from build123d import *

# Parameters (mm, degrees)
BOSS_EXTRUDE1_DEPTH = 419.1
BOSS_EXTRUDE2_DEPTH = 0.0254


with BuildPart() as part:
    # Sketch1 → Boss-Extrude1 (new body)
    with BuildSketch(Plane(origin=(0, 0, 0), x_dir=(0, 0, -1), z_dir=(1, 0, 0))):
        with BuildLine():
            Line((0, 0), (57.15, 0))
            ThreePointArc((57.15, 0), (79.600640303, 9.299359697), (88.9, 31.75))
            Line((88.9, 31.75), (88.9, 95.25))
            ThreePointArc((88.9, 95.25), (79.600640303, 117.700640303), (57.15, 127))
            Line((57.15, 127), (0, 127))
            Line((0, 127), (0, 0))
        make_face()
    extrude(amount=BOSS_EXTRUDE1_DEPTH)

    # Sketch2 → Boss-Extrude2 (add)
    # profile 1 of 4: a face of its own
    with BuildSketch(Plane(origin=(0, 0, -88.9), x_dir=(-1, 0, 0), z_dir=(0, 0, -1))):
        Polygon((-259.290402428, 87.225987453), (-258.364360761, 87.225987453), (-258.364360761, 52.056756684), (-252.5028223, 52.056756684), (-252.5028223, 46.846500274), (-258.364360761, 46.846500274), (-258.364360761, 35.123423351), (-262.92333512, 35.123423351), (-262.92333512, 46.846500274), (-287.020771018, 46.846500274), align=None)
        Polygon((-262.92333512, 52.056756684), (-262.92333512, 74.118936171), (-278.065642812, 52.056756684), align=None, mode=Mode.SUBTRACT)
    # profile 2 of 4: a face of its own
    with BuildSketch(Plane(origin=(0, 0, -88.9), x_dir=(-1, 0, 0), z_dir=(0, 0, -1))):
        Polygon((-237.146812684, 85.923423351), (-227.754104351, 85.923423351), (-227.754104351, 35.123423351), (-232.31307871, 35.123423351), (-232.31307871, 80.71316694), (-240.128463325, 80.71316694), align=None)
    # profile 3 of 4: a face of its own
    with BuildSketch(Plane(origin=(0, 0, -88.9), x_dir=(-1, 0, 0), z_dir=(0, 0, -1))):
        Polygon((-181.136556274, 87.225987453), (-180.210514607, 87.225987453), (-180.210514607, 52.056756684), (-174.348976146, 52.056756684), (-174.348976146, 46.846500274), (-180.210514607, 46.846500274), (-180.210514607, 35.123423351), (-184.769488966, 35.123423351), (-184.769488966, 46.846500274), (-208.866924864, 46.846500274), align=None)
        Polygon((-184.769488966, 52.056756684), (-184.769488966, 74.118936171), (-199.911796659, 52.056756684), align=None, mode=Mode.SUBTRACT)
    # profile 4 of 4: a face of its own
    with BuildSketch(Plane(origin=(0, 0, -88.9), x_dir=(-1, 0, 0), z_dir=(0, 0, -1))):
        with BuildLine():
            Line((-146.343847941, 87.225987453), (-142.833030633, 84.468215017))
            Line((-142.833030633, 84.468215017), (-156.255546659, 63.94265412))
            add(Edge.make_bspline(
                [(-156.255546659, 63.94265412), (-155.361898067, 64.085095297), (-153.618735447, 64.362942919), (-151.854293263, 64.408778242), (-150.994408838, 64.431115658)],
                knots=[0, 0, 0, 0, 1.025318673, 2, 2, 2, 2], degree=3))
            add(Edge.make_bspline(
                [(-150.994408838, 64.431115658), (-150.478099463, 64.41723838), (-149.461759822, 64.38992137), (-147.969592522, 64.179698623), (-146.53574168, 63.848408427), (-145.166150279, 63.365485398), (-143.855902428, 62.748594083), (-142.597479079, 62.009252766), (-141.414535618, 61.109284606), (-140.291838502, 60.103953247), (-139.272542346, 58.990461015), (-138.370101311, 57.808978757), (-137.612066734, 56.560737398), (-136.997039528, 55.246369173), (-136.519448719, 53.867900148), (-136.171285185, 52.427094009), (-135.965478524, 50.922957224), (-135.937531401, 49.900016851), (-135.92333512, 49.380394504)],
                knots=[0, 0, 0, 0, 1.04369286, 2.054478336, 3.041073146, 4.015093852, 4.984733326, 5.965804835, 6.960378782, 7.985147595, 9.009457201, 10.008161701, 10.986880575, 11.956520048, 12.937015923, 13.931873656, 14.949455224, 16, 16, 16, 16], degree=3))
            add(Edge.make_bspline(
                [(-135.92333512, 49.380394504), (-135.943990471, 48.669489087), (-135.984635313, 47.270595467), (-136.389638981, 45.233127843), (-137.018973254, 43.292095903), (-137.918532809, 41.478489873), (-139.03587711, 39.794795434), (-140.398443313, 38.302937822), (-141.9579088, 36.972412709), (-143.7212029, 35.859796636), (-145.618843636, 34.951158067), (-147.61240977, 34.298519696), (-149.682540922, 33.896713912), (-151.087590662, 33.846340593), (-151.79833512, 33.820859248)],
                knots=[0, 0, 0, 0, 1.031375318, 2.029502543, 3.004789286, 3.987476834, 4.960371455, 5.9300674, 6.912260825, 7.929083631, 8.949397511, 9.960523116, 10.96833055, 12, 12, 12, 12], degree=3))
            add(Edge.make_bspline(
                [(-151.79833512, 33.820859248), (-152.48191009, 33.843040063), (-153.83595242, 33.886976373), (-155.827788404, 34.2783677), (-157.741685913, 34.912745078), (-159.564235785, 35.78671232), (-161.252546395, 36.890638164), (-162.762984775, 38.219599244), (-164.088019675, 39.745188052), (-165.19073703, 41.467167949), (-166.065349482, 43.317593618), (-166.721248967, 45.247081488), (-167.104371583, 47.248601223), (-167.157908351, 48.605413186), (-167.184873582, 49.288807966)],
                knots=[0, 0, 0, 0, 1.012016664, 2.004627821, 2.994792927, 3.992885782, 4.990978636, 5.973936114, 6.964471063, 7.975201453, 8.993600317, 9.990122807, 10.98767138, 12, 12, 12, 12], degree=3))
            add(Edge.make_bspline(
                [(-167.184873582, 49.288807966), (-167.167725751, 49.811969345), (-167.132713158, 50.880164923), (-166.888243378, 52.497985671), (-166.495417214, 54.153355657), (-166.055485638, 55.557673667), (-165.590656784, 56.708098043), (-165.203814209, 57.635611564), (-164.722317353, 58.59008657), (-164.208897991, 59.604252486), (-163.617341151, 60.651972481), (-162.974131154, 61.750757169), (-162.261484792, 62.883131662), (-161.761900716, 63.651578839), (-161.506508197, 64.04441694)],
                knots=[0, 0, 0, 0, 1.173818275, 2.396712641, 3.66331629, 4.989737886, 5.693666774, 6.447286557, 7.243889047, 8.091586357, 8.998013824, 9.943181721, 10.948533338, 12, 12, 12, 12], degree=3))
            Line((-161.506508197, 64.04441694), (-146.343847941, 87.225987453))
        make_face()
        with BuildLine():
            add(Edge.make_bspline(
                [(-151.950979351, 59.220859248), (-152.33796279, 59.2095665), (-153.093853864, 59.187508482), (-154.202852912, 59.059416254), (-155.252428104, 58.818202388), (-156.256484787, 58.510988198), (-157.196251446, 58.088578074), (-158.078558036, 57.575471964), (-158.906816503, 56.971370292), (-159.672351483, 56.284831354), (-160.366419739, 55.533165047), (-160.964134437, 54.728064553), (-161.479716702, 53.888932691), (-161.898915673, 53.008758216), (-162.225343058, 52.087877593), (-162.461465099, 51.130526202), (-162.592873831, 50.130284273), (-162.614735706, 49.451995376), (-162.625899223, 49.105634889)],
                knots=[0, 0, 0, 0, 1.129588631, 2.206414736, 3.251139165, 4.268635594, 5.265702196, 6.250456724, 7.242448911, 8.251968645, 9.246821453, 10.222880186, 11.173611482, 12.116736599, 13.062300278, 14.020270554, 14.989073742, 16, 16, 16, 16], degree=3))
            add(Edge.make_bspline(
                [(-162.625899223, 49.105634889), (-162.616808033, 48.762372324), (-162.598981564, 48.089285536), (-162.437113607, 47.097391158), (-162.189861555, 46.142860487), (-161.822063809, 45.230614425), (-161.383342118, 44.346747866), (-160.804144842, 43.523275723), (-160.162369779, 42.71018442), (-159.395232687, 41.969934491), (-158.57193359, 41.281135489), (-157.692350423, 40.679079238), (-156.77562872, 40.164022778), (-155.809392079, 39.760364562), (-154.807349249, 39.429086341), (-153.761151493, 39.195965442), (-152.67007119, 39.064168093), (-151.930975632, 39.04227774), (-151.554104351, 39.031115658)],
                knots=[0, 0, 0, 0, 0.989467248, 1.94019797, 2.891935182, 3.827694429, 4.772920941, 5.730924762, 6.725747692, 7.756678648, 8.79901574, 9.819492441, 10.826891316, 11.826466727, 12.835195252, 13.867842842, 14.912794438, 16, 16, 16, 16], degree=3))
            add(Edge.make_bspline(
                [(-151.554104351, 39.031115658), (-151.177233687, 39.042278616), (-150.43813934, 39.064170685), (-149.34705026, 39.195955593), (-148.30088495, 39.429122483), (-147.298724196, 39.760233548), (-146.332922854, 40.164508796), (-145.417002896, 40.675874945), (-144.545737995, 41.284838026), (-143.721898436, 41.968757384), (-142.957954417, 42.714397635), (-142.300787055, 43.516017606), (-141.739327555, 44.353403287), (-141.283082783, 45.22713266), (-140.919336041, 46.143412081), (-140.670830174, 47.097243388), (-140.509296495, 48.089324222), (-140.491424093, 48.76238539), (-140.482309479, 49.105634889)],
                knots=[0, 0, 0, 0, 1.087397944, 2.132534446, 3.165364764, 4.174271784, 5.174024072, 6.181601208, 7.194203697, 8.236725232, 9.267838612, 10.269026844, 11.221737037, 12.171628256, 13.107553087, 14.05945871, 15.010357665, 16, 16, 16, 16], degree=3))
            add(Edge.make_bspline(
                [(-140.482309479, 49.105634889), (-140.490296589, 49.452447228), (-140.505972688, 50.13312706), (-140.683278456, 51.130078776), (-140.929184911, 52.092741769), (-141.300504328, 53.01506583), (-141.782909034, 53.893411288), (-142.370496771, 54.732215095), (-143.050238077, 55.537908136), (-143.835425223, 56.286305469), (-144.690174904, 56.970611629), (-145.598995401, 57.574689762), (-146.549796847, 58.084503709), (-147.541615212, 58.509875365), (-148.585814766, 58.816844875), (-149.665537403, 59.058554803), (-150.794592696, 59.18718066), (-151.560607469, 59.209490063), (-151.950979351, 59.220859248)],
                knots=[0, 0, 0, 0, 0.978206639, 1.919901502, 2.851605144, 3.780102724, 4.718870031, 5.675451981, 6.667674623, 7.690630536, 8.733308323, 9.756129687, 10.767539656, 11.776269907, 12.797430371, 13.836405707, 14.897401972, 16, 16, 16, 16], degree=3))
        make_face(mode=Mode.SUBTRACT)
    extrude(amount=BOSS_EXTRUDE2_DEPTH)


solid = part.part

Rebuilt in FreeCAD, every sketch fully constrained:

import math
import FreeCAD as App
import Part
import Sketcher
from FreeCAD import Vector
Q = App.Units.Quantity


def add_polygon(sketch, points):
    """Adds a closed chain of lines whose ends are joined by coincident constraints."""
    first, n = sketch.GeometryCount, len(points)
    for a, b in zip(points, points[1:] + points[:1]):
        sketch.addGeometry(Part.LineSegment(App.Vector(*a, 0), App.Vector(*b, 0)), False)
    for i in range(n):
        sketch.addConstraint(Sketcher.Constraint("Coincident", first + i, 2, first + (i + 1) % n, 1))

doc = App.newDocument("Part")
body = doc.addObject("PartDesign::Body", "Body")

sketch1 = doc.addObject("Sketcher::SketchObject", "Sketch")
body.addObject(sketch1)
sketch1.AttachmentSupport = (doc.YZ_Plane, [""])
sketch1.MapMode = "FlatFace"
sketch1.addGeometry([
    Part.LineSegment(Vector(0, 0, 0), Vector(0, -57, 0)),
    Part.ArcOfCircle(Part.Circle(Vector(32, -57, 0), Vector(0, 0, 1), 32), math.radians(180), math.radians(270)),
    Part.LineSegment(Vector(32, -89, 0), Vector(95, -89, 0)),
    Part.ArcOfCircle(Part.Circle(Vector(95, -57, 0), Vector(0, 0, 1), 32), math.radians(-90), math.radians(0)),
    Part.LineSegment(Vector(127, -57, 0), Vector(127, 0, 0)),
    Part.LineSegment(Vector(127, 0, 0), Vector(0, 0, 0)),
], False)
sketch1.addConstraint([
    Sketcher.Constraint("Tangent", 0, 2, 1, 1),
    Sketcher.Constraint("Tangent", 1, 2, 2, 1),
    Sketcher.Constraint("Tangent", 2, 2, 3, 1),
    Sketcher.Constraint("Tangent", 3, 2, 4, 1),
    Sketcher.Constraint("Coincident", 4, 2, 5, 1),
    Sketcher.Constraint("Coincident", 5, 2, 0, 1),
    Sketcher.Constraint("Vertical", 0),
    Sketcher.Constraint("Horizontal", 2),
    Sketcher.Constraint("Vertical", 4),
    Sketcher.Constraint("Horizontal", 5),
    Sketcher.Constraint("Coincident", 5, 2, -1, 1),
    Sketcher.Constraint("Equal", 1, 3),
    Sketcher.Constraint("DistanceX", 5, 2, 5, 1, Q("5 in")),
    Sketcher.Constraint("Radius", 1, Q("1.25 in")),
    Sketcher.Constraint("DistanceY", 0, 2, 0, 1, Q("2.25 in")),
])
pad1 = doc.addObject("PartDesign::Pad", "Pad")
body.addObject(pad1)
pad1.Profile = sketch1
pad1.Length = Q("16.5 in")

sketch2 = doc.addObject("Sketcher::SketchObject", "Sketch001")
body.addObject(sketch2)
sketch2.AttachmentSupport = (doc.XY_Plane, [""])
sketch2.MapMode = "FlatFace"
sketch2.AttachmentOffset = App.Placement(Vector(0, 0, -3.5 * 25.4), App.Rotation())
add_polygon(sketch2, [(258.364361, 87.225987), (259.290402, 87.225987), (287.020771, 46.8465), (262.923335, 46.8465), (262.923335, 35.123423), (258.364361, 35.123423), (258.364361, 46.8465), (252.502822, 46.8465), (252.502822, 52.056757), (258.364361, 52.056757)])
add_polygon(sketch2, [(262.923335, 52.056757), (278.065643, 52.056757), (262.923335, 74.118936)])
add_polygon(sketch2, [(227.754104, 85.923423), (237.146813, 85.923423), (240.128463, 80.713167), (232.313079, 80.713167), (232.313079, 35.123423), (227.754104, 35.123423)])
add_polygon(sketch2, [(180.210515, 87.225987), (181.136556, 87.225987), (208.866925, 46.8465), (184.769489, 46.8465), (184.769489, 35.123423), (180.210515, 35.123423), (180.210515, 46.8465), (174.348976, 46.8465), (174.348976, 52.056757), (180.210515, 52.056757)])
add_polygon(sketch2, [(184.769489, 52.056757), (199.911797, 52.056757), (184.769489, 74.118936)])
sketch2.addGeometry(Part.LineSegment(Vector(142.833031, 84.468215, 0), Vector(146.343848, 87.225987, 0)), False)
sketch2.addGeometry(Part.LineSegment(Vector(146.343848, 87.225987, 0), Vector(161.506508, 64.044417, 0)), False)
sketch2.addGeometry(Part.BSplineCurve([Vector(167.184874, 49.288808, 0), Vector(167.167726, 49.811969, 0), Vector(167.132713, 50.880165, 0), Vector(166.888243, 52.497986, 0), Vector(166.495417, 54.153356, 0), Vector(166.055486, 55.557674, 0), Vector(165.590657, 56.708098, 0), Vector(165.203814, 57.635612, 0), Vector(164.722317, 58.590087, 0), Vector(164.208898, 59.604252, 0), Vector(163.617341, 60.651972, 0), Vector(162.974131, 61.750757, 0), Vector(162.261485, 62.883132, 0), Vector(161.761901, 63.651579, 0), Vector(161.506508, 64.044417, 0)], [4, 1, 1, 1, 1, 1, 1, 1, 1, 1, 1, 1, 4], [0, 1.173818275, 2.396712641, 3.66331629, 4.989737886, 5.693666774, 6.447286557, 7.243889047, 8.091586357, 8.998013824, 9.943181721, 10.948533338, 12], False, 3, [1, 1, 1, 1, 1, 1, 1, 1, 1, 1, 1, 1, 1, 1, 1], False), False)
sketch2.addGeometry(Part.BSplineCurve([Vector(151.798335, 33.820859, 0), Vector(152.48191, 33.84304, 0), Vector(153.835952, 33.886976, 0), Vector(155.827788, 34.278368, 0), Vector(157.741686, 34.912745, 0), Vector(159.564236, 35.786712, 0), Vector(161.252546, 36.890638, 0), Vector(162.762985, 38.219599, 0), Vector(164.08802, 39.745188, 0), Vector(165.190737, 41.467168, 0), Vector(166.065349, 43.317594, 0), Vector(166.721249, 45.247081, 0), Vector(167.104372, 47.248601, 0), Vector(167.157908, 48.605413, 0), Vector(167.184874, 49.288808, 0)], [4, 1, 1, 1, 1, 1, 1, 1, 1, 1, 1, 1, 4], [0, 1.012016664, 2.004627821, 2.994792927, 3.992885782, 4.990978636, 5.973936114, 6.964471063, 7.975201453, 8.993600317, 9.990122807, 10.98767138, 12], False, 3, [1, 1, 1, 1, 1, 1, 1, 1, 1, 1, 1, 1, 1, 1, 1], False), False)
sketch2.addGeometry(Part.BSplineCurve([Vector(135.923335, 49.380395, 0), Vector(135.94399, 48.669489, 0), Vector(135.984635, 47.270595, 0), Vector(136.389639, 45.233128, 0), Vector(137.018973, 43.292096, 0), Vector(137.918533, 41.47849, 0), Vector(139.035877, 39.794795, 0), Vector(140.398443, 38.302938, 0), Vector(141.957909, 36.972413, 0), Vector(143.721203, 35.859797, 0), Vector(145.618844, 34.951158, 0), Vector(147.61241, 34.29852, 0), Vector(149.682541, 33.896714, 0), Vector(151.087591, 33.846341, 0), Vector(151.798335, 33.820859, 0)], [4, 1, 1, 1, 1, 1, 1, 1, 1, 1, 1, 1, 4], [0, 1.031375318, 2.029502543, 3.004789286, 3.987476834, 4.960371455, 5.9300674, 6.912260825, 7.929083631, 8.949397511, 9.960523116, 10.96833055, 12], False, 3, [1, 1, 1, 1, 1, 1, 1, 1, 1, 1, 1, 1, 1, 1, 1], False), False)
sketch2.addGeometry(Part.BSplineCurve([Vector(150.994409, 64.431116, 0), Vector(150.478099, 64.417238, 0), Vector(149.46176, 64.389921, 0), Vector(147.969593, 64.179699, 0), Vector(146.535742, 63.848408, 0), Vector(145.16615, 63.365485, 0), Vector(143.855902, 62.748594, 0), Vector(142.597479, 62.009253, 0), Vector(141.414536, 61.109285, 0), Vector(140.291839, 60.103953, 0), Vector(139.272542, 58.990461, 0), Vector(138.370101, 57.808979, 0), Vector(137.612067, 56.560737, 0), Vector(136.99704, 55.246369, 0), Vector(136.519449, 53.8679, 0), Vector(136.171285, 52.427094, 0), Vector(135.965479, 50.922957, 0), Vector(135.937531, 49.900017, 0), Vector(135.923335, 49.380395, 0)], [4, 1, 1, 1, 1, 1, 1, 1, 1, 1, 1, 1, 1, 1, 1, 1, 4], [0, 1.04369286, 2.054478336, 3.041073146, 4.015093852, 4.984733326, 5.965804835, 6.960378782, 7.985147595, 9.009457201, 10.008161701, 10.986880575, 11.956520048, 12.937015923, 13.931873656, 14.949455224, 16], False, 3, [1, 1, 1, 1, 1, 1, 1, 1, 1, 1, 1, 1, 1, 1, 1, 1, 1, 1, 1], False), False)
sketch2.addGeometry(Part.BSplineCurve([Vector(156.255547, 63.942654, 0), Vector(155.361898, 64.085095, 0), Vector(153.618735, 64.362943, 0), Vector(151.854293, 64.408778, 0), Vector(150.994409, 64.431116, 0)], [4, 1, 4], [0, 1.025318673, 2], False, 3, [1, 1, 1, 1, 1], False), False)
sketch2.addGeometry(Part.LineSegment(Vector(156.255547, 63.942654, 0), Vector(142.833031, 84.468215, 0)), False)
sketch2.addGeometry(Part.BSplineCurve([Vector(140.482309, 49.105635, 0), Vector(140.490297, 49.452447, 0), Vector(140.505973, 50.133127, 0), Vector(140.683278, 51.130079, 0), Vector(140.929185, 52.092742, 0), Vector(141.300504, 53.015066, 0), Vector(141.782909, 53.893411, 0), Vector(142.370497, 54.732215, 0), Vector(143.050238, 55.537908, 0), Vector(143.835425, 56.286305, 0), Vector(144.690175, 56.970612, 0), Vector(145.598995, 57.57469, 0), Vector(146.549797, 58.084504, 0), Vector(147.541615, 58.509875, 0), Vector(148.585815, 58.816845, 0), Vector(149.665537, 59.058555, 0), Vector(150.794593, 59.187181, 0), Vector(151.560607, 59.20949, 0), Vector(151.950979, 59.220859, 0)], [4, 1, 1, 1, 1, 1, 1, 1, 1, 1, 1, 1, 1, 1, 1, 1, 4], [0, 0.978206639, 1.919901502, 2.851605144, 3.780102724, 4.718870031, 5.675451981, 6.667674623, 7.690630536, 8.733308323, 9.756129687, 10.767539656, 11.776269907, 12.797430371, 13.836405707, 14.897401972, 16], False, 3, [1, 1, 1, 1, 1, 1, 1, 1, 1, 1, 1, 1, 1, 1, 1, 1, 1, 1, 1], False), False)
sketch2.addGeometry(Part.BSplineCurve([Vector(151.554104, 39.031116, 0), Vector(151.177234, 39.042279, 0), Vector(150.438139, 39.064171, 0), Vector(149.34705, 39.195956, 0), Vector(148.300885, 39.429122, 0), Vector(147.298724, 39.760234, 0), Vector(146.332923, 40.164509, 0), Vector(145.417003, 40.675875, 0), Vector(144.545738, 41.284838, 0), Vector(143.721898, 41.968757, 0), Vector(142.957954, 42.714398, 0), Vector(142.300787, 43.516018, 0), Vector(141.739328, 44.353403, 0), Vector(141.283083, 45.227133, 0), Vector(140.919336, 46.143412, 0), Vector(140.67083, 47.097243, 0), Vector(140.509296, 48.089324, 0), Vector(140.491424, 48.762385, 0), Vector(140.482309, 49.105635, 0)], [4, 1, 1, 1, 1, 1, 1, 1, 1, 1, 1, 1, 1, 1, 1, 1, 4], [0, 1.087397944, 2.132534446, 3.165364764, 4.174271784, 5.174024072, 6.181601208, 7.194203697, 8.236725232, 9.267838612, 10.269026844, 11.221737037, 12.171628256, 13.107553087, 14.05945871, 15.010357665, 16], False, 3, [1, 1, 1, 1, 1, 1, 1, 1, 1, 1, 1, 1, 1, 1, 1, 1, 1, 1, 1], False), False)
sketch2.addGeometry(Part.BSplineCurve([Vector(162.625899, 49.105635, 0), Vector(162.616808, 48.762372, 0), Vector(162.598982, 48.089286, 0), Vector(162.437114, 47.097391, 0), Vector(162.189862, 46.14286, 0), Vector(161.822064, 45.230614, 0), Vector(161.383342, 44.346748, 0), Vector(160.804145, 43.523276, 0), Vector(160.16237, 42.710184, 0), Vector(159.395233, 41.969934, 0), Vector(158.571934, 41.281135, 0), Vector(157.69235, 40.679079, 0), Vector(156.775629, 40.164023, 0), Vector(155.809392, 39.760365, 0), Vector(154.807349, 39.429086, 0), Vector(153.761151, 39.195965, 0), Vector(152.670071, 39.064168, 0), Vector(151.930976, 39.042278, 0), Vector(151.554104, 39.031116, 0)], [4, 1, 1, 1, 1, 1, 1, 1, 1, 1, 1, 1, 1, 1, 1, 1, 4], [0, 0.989467248, 1.94019797, 2.891935182, 3.827694429, 4.772920941, 5.730924762, 6.725747692, 7.756678648, 8.79901574, 9.819492441, 10.826891316, 11.826466727, 12.835195252, 13.867842842, 14.912794438, 16], False, 3, [1, 1, 1, 1, 1, 1, 1, 1, 1, 1, 1, 1, 1, 1, 1, 1, 1, 1, 1], False), False)
sketch2.addGeometry(Part.BSplineCurve([Vector(151.950979, 59.220859, 0), Vector(152.337963, 59.209567, 0), Vector(153.093854, 59.187508, 0), Vector(154.202853, 59.059416, 0), Vector(155.252428, 58.818202, 0), Vector(156.256485, 58.510988, 0), Vector(157.196251, 58.088578, 0), Vector(158.078558, 57.575472, 0), Vector(158.906817, 56.97137, 0), Vector(159.672351, 56.284831, 0), Vector(160.36642, 55.533165, 0), Vector(160.964134, 54.728065, 0), Vector(161.479717, 53.888933, 0), Vector(161.898916, 53.008758, 0), Vector(162.225343, 52.087878, 0), Vector(162.461465, 51.130526, 0), Vector(162.592874, 50.130284, 0), Vector(162.614736, 49.451995, 0), Vector(162.625899, 49.105635, 0)], [4, 1, 1, 1, 1, 1, 1, 1, 1, 1, 1, 1, 1, 1, 1, 1, 4], [0, 1.129588631, 2.206414736, 3.251139165, 4.268635594, 5.265702196, 6.250456724, 7.242448911, 8.251968645, 9.246821453, 10.222880186, 11.173611482, 12.116736599, 13.062300278, 14.020270554, 14.989073742, 16], False, 3, [1, 1, 1, 1, 1, 1, 1, 1, 1, 1, 1, 1, 1, 1, 1, 1, 1, 1, 1], False), False)
sketch2.addConstraint([
    Sketcher.Constraint("Block", 34),
    Sketcher.Constraint("Block", 35),
    Sketcher.Constraint("Block", 36),
    Sketcher.Constraint("Block", 37),
    Sketcher.Constraint("Block", 38),
    Sketcher.Constraint("Block", 40),
    Sketcher.Constraint("Block", 41),
    Sketcher.Constraint("Block", 42),
    Sketcher.Constraint("Block", 43),
    Sketcher.Constraint("Coincident", 32, 2, 33, 1),
    Sketcher.Constraint("Coincident", 33, 2, 34, 2),
    Sketcher.Constraint("Coincident", 38, 1, 39, 1),
    Sketcher.Constraint("Coincident", 39, 2, 32, 1),
    Sketcher.Constraint("Horizontal", 0),
    Sketcher.Constraint("Horizontal", 2),
    Sketcher.Constraint("Vertical", 3),
    Sketcher.Constraint("Horizontal", 4),
    Sketcher.Constraint("Vertical", 5),
    Sketcher.Constraint("Horizontal", 6),
    Sketcher.Constraint("Vertical", 7),
    Sketcher.Constraint("Horizontal", 8),
    Sketcher.Constraint("Vertical", 9),
    Sketcher.Constraint("Horizontal", 10),
    Sketcher.Constraint("Vertical", 12),
    Sketcher.Constraint("Horizontal", 13),
    Sketcher.Constraint("Horizontal", 15),
    Sketcher.Constraint("Vertical", 16),
    Sketcher.Constraint("Horizontal", 17),
    Sketcher.Constraint("Vertical", 18),
    Sketcher.Constraint("Horizontal", 19),
    Sketcher.Constraint("Horizontal", 21),
    Sketcher.Constraint("Vertical", 22),
    Sketcher.Constraint("Horizontal", 23),
    Sketcher.Constraint("Vertical", 24),
    Sketcher.Constraint("Horizontal", 25),
    Sketcher.Constraint("Vertical", 26),
    Sketcher.Constraint("Horizontal", 27),
    Sketcher.Constraint("Vertical", 28),
    Sketcher.Constraint("Horizontal", 29),
    Sketcher.Constraint("Vertical", 31),
    Sketcher.Constraint("Parallel", 1, 20),
    Sketcher.Constraint("Parallel", 11, 30),
    Sketcher.Constraint("Horizontal", 2, 2, 5, 2),
    Sketcher.Constraint("Horizontal", 8, 2, 10, 2),
    Sketcher.Constraint("Horizontal", 4, 2, 16, 2),
    Sketcher.Constraint("Horizontal", 9, 2, 19, 2),
    Sketcher.Constraint("Horizontal", 6, 2, 20, 2),
    Sketcher.Constraint("Horizontal", 17, 2, 22, 2),
    Sketcher.Constraint("Horizontal", 21, 2, 24, 2),
    Sketcher.Constraint("Horizontal", 12, 2, 26, 2),
    Sketcher.Constraint("Horizontal", 27, 2, 29, 2),
    Sketcher.Constraint("Horizontal", 11, 2, 30, 2),
    Sketcher.Constraint("Horizontal", 28, 2, 32, 2),
    Sketcher.Constraint("Vertical", 5, 2, 8, 2),
    Sketcher.Constraint("Vertical", 3, 2, 11, 2),
    Sketcher.Constraint("Vertical", 24, 2, 27, 2),
    Sketcher.Constraint("Vertical", 22, 2, 30, 2),
    Sketcher.Constraint("Equal", 4, 17),
    Sketcher.Constraint("Equal", 0, 19),
    Sketcher.Constraint("Equal", 2, 21),
    Sketcher.Constraint("Equal", 8, 25),
    Sketcher.Constraint("DistanceY", 18, 1, 18, 2, Q("2 in")),
    Sketcher.Constraint("DistanceX", 0, 1, 0, 2, Q("0.926042 mm")),
    Sketcher.Constraint("DistanceX", 6, 2, 6, 1, Q("5.861538 mm")),
    Sketcher.Constraint("DistanceX", 13, 1, 13, 2, Q("9.392708 mm")),
    Sketcher.Constraint("DistanceY", 9, 1, 9, 2, Q("35.169231 mm")),
    Sketcher.Constraint("DistanceY", 12, 2, 12, 1, Q("22.062179 mm")),
    Sketcher.Constraint("DistanceY", -1, 1, 1, 2, Q("46.8465 mm")),
    Sketcher.Constraint("DistanceX", 18, 2, 0, 2, Q("31.536298 mm")),
    Sketcher.Constraint("DistanceY", 33, 2, 39, 2, Q("20.423798 mm")),
    Sketcher.Constraint("Distance", 1, Q("48.98445 mm")),
    Sketcher.Constraint("Distance", 32, Q("4.464431 mm")),
    Sketcher.Constraint("DistanceX", 2, 2, 2, 1, Q("24.097436 mm")),
    Sketcher.Constraint("DistanceX", 4, 2, 4, 1, Q("4.558974 mm")),
    Sketcher.Constraint("DistanceX", 10, 1, 10, 2, Q("15.142308 mm")),
    Sketcher.Constraint("DistanceX", 15, 2, 15, 1, Q("7.815385 mm")),
    Sketcher.Constraint("DistanceY", 3, 2, 3, 1, Q("11.723077 mm")),
    Sketcher.Constraint("DistanceY", 16, 2, 16, 1, Q("45.589744 mm")),
    Sketcher.Constraint("DistanceX", -1, 1, 1, 2, Q("287.020771 mm")),
    Sketcher.Constraint("DistanceX", -1, 1, 21, 2, Q("184.769489 mm")),
    Sketcher.Constraint("DistanceX", -1, 1, 39, 2, Q("142.833031 mm")),
])
pad2 = doc.addObject("PartDesign::Pad", "Pad001")
body.addObject(pad2)
pad2.Profile = sketch2
pad2.Length = Q("0.001 in")
pad2.Reversed = True

doc.recompute()
